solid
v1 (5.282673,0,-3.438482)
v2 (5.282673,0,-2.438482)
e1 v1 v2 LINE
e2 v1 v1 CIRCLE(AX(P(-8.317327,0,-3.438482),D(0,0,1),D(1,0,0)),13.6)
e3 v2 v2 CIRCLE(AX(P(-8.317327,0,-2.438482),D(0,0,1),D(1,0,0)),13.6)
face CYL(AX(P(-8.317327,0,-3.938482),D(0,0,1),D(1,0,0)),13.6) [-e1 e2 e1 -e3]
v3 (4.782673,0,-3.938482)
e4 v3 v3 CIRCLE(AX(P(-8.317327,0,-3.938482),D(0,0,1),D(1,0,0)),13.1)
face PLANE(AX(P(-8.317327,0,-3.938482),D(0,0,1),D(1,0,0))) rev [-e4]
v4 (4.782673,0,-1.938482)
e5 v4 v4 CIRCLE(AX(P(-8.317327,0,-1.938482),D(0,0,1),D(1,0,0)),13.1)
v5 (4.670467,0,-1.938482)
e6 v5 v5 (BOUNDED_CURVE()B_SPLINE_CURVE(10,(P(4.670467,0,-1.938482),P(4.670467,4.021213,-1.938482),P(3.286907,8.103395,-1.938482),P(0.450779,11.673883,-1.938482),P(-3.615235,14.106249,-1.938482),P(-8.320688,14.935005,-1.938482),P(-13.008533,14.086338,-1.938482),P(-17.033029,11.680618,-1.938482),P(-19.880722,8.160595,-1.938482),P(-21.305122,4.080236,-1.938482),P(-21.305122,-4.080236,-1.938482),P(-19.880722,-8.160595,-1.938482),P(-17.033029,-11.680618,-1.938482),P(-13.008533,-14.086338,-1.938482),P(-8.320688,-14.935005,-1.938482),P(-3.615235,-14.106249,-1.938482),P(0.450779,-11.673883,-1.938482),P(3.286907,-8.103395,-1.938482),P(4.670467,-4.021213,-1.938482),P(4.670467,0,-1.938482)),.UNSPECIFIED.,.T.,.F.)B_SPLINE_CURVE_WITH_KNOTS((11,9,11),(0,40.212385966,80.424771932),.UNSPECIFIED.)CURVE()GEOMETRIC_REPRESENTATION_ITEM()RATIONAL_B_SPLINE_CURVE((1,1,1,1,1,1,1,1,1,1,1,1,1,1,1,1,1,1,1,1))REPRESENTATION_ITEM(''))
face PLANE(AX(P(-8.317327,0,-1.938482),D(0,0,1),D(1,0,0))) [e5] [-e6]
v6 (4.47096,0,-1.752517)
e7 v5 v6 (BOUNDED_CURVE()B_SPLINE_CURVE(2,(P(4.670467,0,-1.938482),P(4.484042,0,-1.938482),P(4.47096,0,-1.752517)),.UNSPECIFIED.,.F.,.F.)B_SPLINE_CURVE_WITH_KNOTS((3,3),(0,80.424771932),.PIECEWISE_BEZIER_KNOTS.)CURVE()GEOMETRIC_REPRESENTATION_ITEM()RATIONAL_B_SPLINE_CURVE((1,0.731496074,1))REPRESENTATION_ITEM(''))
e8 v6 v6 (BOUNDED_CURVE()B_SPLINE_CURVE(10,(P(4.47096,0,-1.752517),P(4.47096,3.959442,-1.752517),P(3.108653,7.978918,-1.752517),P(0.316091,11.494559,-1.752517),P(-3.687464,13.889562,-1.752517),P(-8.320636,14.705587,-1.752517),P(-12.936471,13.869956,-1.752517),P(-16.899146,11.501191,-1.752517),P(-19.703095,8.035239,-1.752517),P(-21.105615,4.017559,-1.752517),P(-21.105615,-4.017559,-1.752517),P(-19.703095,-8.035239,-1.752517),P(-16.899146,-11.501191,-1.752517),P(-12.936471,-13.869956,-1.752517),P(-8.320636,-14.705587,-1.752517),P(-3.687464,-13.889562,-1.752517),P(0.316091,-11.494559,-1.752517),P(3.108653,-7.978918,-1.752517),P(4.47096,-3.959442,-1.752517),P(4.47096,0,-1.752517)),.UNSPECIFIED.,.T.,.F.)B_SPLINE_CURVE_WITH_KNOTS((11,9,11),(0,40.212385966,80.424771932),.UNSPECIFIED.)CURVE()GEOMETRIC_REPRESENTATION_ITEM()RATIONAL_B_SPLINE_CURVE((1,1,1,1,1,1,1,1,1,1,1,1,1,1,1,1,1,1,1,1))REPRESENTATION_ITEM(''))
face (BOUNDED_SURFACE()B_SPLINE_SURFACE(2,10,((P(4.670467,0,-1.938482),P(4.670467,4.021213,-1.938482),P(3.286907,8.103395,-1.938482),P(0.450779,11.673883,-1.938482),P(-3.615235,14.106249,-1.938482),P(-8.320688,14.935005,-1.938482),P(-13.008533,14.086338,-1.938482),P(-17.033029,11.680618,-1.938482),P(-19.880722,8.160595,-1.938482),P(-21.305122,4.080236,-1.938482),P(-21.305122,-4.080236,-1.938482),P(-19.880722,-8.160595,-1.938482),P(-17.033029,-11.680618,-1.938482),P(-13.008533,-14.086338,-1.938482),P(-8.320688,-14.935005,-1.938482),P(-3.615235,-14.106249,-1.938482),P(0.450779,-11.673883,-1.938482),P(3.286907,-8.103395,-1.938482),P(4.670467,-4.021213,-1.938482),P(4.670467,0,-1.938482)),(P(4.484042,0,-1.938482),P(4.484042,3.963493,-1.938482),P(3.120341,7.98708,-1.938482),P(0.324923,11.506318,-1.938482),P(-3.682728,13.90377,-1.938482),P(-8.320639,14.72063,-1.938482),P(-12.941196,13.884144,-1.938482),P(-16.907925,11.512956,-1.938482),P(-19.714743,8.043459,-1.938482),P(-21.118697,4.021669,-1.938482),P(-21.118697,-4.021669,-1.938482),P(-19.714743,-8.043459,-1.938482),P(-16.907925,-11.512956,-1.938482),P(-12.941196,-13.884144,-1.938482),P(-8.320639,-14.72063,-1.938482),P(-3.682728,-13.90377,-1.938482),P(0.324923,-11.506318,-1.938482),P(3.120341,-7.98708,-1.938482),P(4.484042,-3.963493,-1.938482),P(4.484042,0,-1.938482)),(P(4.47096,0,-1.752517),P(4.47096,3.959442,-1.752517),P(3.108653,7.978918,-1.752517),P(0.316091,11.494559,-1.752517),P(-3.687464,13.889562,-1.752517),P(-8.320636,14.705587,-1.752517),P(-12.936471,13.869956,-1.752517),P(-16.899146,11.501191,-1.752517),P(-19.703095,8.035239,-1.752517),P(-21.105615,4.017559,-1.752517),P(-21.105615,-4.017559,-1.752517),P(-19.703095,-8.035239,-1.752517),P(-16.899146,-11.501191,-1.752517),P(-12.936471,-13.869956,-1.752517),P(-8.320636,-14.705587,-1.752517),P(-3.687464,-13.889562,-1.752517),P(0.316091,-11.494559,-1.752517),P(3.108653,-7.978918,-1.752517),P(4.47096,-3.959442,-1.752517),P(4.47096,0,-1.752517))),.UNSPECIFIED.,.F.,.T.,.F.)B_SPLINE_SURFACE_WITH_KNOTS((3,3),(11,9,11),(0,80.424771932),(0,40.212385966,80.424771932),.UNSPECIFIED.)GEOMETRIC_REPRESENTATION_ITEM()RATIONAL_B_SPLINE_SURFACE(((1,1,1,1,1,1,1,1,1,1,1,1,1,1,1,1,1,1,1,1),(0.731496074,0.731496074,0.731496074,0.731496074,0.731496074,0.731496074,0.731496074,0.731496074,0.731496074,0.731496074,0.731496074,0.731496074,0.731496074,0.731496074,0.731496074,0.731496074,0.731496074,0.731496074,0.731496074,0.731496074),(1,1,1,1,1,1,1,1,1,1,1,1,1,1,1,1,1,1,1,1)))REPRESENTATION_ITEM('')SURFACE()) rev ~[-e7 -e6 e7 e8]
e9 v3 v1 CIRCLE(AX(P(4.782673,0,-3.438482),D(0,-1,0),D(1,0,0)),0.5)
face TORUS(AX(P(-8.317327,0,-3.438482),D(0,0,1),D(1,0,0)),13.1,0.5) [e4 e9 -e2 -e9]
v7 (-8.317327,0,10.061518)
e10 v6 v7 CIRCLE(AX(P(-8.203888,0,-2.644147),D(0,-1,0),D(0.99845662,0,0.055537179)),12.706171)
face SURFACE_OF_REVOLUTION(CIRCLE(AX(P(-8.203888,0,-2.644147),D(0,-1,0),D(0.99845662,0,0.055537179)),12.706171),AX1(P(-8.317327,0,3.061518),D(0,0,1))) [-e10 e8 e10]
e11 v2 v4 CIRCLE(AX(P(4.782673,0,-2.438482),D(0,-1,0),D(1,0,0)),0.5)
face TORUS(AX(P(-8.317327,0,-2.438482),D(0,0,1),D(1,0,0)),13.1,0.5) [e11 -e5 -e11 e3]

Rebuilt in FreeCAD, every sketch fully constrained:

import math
import FreeCAD as App
import Part
import Sketcher
from FreeCAD import Vector
Q = App.Units.Quantity


def edges_at(feature, points):
    """Names of the edges that pass closest to the given points."""
    edges = feature.Shape.Edges
    near = lambda p: min(range(len(edges)), key=lambda i: edges[i].distToShape(Part.Vertex(*p))[0])
    return sorted({f"Edge{near(p) + 1}" for p in points})

doc = App.newDocument("Part")
params = doc.addObject("Spreadsheet::Sheet", "Params")
for row, (alias, value) in enumerate([
    ("sketch1_height", "14 mm"),
    ("sketch1_height2", "2 mm"),
    ("sketch1_width", "13.6 mm"),
    ("sketch1_width2", "0.8 mm"),
    ("revolution_angle", "360 deg"),
    ("fillet_radius", "0.5 mm"),
    ("fillet2_radius", "0.2 mm"),
], start=1):
    params.set(f"A{row}", alias)
    params.set(f"B{row}", "=" + value)
    params.setAlias(f"B{row}", alias)

body = doc.addObject("PartDesign::Body", "Body")

# Sketch on XZ plane
sketch1 = body.newObject("Sketcher::SketchObject", "Sketch")
sketch1.AttachmentSupport = (doc.getObject("XZ_Plane"), [""])
sketch1.MapMode = "FlatFace"
sketch1.addGeometry([
    Part.LineSegment(Vector(-8.317327, 10.061518, 0), Vector(-8.317327, -3.938482, 0)),  # 0
    Part.LineSegment(Vector(-8.317327, -3.938482, 0), Vector(5.282673, -3.938482, 0)),  # 1
    Part.LineSegment(Vector(5.282673, -3.938482, 0), Vector(5.282673, -1.938482, 0)),  # 2
    Part.LineSegment(Vector(5.282673, -1.938482, 0), Vector(4.482673, -1.938482, 0)),  # 3
    Part.ArcOfCircle(Part.Circle(Vector(-8.203888, -2.644147, 0), Vector(0, 0, 1), 12.706171), math.radians(3.183684), math.radians(90.511537)),  # 4
], False)
sketch1.addGeometry(Part.LineSegment(Vector(-8.317327, -3.938482, 0), Vector(-8.317327, 10.061518, 0)), True)  # axis
sketch1.addConstraint([
    Sketcher.Constraint("Coincident", 0, 2, 1, 1),
    Sketcher.Constraint("Coincident", 1, 2, 2, 1),
    Sketcher.Constraint("Coincident", 2, 2, 3, 1),
    Sketcher.Constraint("Coincident", 3, 2, 4, 1),
    Sketcher.Constraint("Coincident", 4, 2, 0, 1),
    Sketcher.Constraint("Vertical", 0),
    Sketcher.Constraint("Horizontal", 1),
    Sketcher.Constraint("Vertical", 2),
    Sketcher.Constraint("Horizontal", 3),
    Sketcher.Constraint("Vertical", 5),
    Sketcher.Constraint("Coincident", 5, 1, 0, 2),
    Sketcher.Constraint("Equal", 0, 5),
    Sketcher.Constraint("DistanceY", 0, 2, 0, 1, Q("14 mm")),
    Sketcher.Constraint("DistanceY", 2, 1, 2, 2, Q("2 mm")),
    Sketcher.Constraint("DistanceX", 1, 1, 1, 2, Q("13.6 mm")),
    Sketcher.Constraint("DistanceX", 3, 2, 3, 1, Q("0.8 mm")),
    Sketcher.Constraint("Radius", 4, Q("12.706171 mm")),
    Sketcher.Constraint("DistanceX", 4, 3, -1, 1, Q("8.203888 mm")),
    Sketcher.Constraint("DistanceY", 4, 3, -1, 1, Q("2.644147 mm")),
])
sketch1.setExpression("Constraints[12]", "Params.sketch1_height")
sketch1.setExpression("Constraints[13]", "Params.sketch1_height2")
sketch1.setExpression("Constraints[14]", "Params.sketch1_width")
sketch1.setExpression("Constraints[15]", "Params.sketch1_width2")
revolution = body.newObject("PartDesign::Revolution", "Revolution")
revolution.Profile = sketch1
revolution.ReferenceAxis = (sketch1, ["Axis0"])
revolution.setExpression("Angle", "Params.revolution_angle")
doc.recompute()

fillet = body.newObject("PartDesign::Fillet", "Fillet")
fillet.Base = (revolution, edges_at(revolution, [(-21.917, 0, -3.938), (-21.917, 0, -1.938)]))
fillet.setExpression("Radius", "Params.fillet_radius")
doc.recompute()

fillet2 = body.newObject("PartDesign::Fillet", "Fillet001")
fillet2.Base = (fillet, edges_at(fillet, [(-21.117, 0, -1.938)]))
fillet2.setExpression("Radius", "Params.fillet2_radius")

doc.recompute()
